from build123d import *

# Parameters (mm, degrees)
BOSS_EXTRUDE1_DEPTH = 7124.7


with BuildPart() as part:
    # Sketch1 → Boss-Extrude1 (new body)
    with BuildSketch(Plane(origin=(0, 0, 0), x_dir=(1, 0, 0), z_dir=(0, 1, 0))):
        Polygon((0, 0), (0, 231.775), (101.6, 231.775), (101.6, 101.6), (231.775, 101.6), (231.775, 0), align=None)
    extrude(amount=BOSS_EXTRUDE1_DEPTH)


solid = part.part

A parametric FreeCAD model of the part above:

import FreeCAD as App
import Part
import Sketcher
Q = App.Units.Quantity


def add_polygon(sketch, points):
    """Adds a closed chain of lines whose ends are joined by coincident constraints."""
    first, n = sketch.GeometryCount, len(points)
    for a, b in zip(points, points[1:] + points[:1]):
        sketch.addGeometry(Part.LineSegment(App.Vector(*a, 0), App.Vector(*b, 0)), False)
    for i in range(n):
        sketch.addConstraint(Sketcher.Constraint("Coincident", first + i, 2, first + (i + 1) % n, 1))

doc = App.newDocument("Part")
params = doc.addObject("Spreadsheet::Sheet", "Params")
for row, (alias, value) in enumerate([
    ("sketch1_width", "4 in"),
    ("sketch1_width2", "9.125 in"),
    ("pad1_length", "280.5 in"),
], start=1):
    params.set(f"A{row}", alias)
    params.set(f"B{row}", "=" + value)
    params.setAlias(f"B{row}", alias)

body = doc.addObject("PartDesign::Body", "Body")

# Sketch on XZ plane
sketch1 = body.newObject("Sketcher::SketchObject", "Sketch")
sketch1.AttachmentSupport = (doc.getObject("XZ_Plane"), [""])
sketch1.MapMode = "FlatFace"
add_polygon(sketch1, [(0, -232), (0, 0), (232, 0), (232, -102), (102, -102), (102, -232)])  # lines 0-5
sketch1.addConstraint(Sketcher.Constraint("Vertical", 0))
sketch1.addConstraint(Sketcher.Constraint("Horizontal", 1))
sketch1.addConstraint(Sketcher.Constraint("Vertical", 2))
sketch1.addConstraint(Sketcher.Constraint("Horizontal", 3))
sketch1.addConstraint(Sketcher.Constraint("Vertical", 4))
sketch1.addConstraint(Sketcher.Constraint("Horizontal", 5))
sketch1.addConstraint(Sketcher.Constraint("Coincident", 0, 2, -1, 1))
sketch1.addConstraint(Sketcher.Constraint("Equal", 1, 0))
sketch1.addConstraint(Sketcher.Constraint("Equal", 5, 2))
sketch1.addConstraint(Sketcher.Constraint("DistanceX", 5, 2, 5, 1, Q("4 in")))
sketch1.addConstraint(Sketcher.Constraint("DistanceX", 1, 1, 1, 2, Q("9.125 in")))
sketch1.setExpression("Constraints[15]", "Params.sketch1_width")
sketch1.setExpression("Constraints[16]", "Params.sketch1_width2")
pad1 = body.newObject("PartDesign::Pad", "Pad")
pad1.Profile = sketch1
pad1.setExpression("Length", "Params.pad1_length")
pad1.Reversed = True

doc.recompute()
